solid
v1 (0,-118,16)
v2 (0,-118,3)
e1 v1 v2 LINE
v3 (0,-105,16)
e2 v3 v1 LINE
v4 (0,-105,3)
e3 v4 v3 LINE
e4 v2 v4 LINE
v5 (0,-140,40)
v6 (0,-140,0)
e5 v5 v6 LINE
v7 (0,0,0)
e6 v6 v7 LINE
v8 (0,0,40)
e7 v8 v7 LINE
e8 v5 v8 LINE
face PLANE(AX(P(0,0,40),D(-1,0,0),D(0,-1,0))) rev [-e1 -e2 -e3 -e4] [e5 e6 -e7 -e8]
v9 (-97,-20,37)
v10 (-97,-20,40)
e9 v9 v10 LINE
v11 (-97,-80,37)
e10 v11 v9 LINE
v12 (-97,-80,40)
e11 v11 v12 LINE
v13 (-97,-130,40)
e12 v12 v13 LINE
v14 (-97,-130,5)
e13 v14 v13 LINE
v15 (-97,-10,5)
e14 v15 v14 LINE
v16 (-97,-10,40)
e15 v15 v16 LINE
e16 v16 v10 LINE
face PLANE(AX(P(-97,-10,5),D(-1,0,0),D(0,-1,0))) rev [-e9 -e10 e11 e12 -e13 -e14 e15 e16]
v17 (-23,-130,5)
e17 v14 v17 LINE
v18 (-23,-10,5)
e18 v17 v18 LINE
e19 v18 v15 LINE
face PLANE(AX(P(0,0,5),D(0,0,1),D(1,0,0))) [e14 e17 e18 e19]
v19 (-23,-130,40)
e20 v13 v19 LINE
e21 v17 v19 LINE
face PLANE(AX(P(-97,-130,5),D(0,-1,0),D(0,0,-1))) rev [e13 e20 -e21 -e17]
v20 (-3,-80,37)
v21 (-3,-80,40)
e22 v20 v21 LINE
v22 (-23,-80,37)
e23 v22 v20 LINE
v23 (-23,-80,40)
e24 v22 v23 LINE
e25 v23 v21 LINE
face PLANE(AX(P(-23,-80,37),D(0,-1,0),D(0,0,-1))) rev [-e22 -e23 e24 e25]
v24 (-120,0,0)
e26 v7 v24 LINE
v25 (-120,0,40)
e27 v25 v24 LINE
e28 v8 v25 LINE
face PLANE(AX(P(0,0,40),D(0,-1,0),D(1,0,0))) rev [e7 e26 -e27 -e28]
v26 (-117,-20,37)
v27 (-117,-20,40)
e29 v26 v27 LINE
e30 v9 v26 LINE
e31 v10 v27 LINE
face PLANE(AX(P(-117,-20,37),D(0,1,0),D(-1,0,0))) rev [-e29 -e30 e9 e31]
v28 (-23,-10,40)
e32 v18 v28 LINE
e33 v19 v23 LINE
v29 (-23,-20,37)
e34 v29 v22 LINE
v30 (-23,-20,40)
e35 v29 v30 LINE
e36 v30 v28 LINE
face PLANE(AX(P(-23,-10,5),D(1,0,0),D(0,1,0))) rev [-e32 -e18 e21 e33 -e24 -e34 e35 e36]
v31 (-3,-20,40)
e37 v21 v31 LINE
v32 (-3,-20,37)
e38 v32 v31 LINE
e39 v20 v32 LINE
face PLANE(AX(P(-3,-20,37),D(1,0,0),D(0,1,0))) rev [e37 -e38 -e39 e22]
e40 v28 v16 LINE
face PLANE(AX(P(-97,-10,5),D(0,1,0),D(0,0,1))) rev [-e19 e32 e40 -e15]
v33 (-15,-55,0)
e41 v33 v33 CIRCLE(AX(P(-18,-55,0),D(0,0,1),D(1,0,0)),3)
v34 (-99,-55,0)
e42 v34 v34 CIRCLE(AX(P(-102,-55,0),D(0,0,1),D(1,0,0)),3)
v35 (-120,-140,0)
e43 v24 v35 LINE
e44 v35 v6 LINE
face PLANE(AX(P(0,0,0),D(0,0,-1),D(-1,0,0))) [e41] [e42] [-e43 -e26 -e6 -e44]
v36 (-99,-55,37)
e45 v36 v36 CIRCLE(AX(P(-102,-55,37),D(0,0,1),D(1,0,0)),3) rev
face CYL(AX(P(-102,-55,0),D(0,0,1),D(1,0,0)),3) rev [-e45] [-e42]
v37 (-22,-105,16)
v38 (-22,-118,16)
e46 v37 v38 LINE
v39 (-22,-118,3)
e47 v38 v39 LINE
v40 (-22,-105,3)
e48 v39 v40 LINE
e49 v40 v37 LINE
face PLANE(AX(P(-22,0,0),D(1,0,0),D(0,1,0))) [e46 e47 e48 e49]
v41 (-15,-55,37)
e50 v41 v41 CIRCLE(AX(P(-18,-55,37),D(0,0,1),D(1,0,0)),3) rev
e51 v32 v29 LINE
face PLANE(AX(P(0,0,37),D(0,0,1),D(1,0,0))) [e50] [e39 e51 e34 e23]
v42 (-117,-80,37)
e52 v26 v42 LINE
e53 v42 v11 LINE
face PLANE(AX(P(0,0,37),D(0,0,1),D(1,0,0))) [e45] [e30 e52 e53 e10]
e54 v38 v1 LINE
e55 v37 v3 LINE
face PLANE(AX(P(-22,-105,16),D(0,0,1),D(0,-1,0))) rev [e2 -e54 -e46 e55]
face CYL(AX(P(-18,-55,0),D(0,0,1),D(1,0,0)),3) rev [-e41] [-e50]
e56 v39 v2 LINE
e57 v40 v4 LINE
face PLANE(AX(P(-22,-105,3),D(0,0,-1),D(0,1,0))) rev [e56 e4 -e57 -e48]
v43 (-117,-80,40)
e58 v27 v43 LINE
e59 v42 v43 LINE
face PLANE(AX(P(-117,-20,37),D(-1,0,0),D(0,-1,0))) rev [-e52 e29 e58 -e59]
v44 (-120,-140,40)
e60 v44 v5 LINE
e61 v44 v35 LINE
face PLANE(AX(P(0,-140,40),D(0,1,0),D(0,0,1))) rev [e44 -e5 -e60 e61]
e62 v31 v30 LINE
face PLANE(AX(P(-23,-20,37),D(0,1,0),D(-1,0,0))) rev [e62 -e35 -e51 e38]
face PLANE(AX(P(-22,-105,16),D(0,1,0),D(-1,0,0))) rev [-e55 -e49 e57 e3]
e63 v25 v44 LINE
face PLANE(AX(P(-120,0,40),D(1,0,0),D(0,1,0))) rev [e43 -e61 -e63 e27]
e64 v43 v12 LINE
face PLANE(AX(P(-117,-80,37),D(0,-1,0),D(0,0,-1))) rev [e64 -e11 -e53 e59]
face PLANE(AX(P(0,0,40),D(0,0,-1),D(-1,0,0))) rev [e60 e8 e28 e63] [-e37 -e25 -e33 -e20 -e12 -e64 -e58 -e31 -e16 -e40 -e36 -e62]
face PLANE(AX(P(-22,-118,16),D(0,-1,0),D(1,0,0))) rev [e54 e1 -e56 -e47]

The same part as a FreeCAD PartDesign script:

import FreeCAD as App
import Part
import Sketcher
from FreeCAD import Vector


def add_polygon(sketch, points):
    """Adds a closed chain of lines whose ends are joined by coincident constraints."""
    first, n = sketch.GeometryCount, len(points)
    for a, b in zip(points, points[1:] + points[:1]):
        sketch.addGeometry(Part.LineSegment(App.Vector(*a, 0), App.Vector(*b, 0)), False)
    for i in range(n):
        sketch.addConstraint(Sketcher.Constraint("Coincident", first + i, 2, first + (i + 1) % n, 1))

doc = App.newDocument("Part")
body = doc.addObject("PartDesign::Body", "Body")

# Sketch on XY plane
sketch1 = doc.addObject("Sketcher::SketchObject", "Sketch")
body.addObject(sketch1)
sketch1.AttachmentSupport = (doc.XY_Plane, [""])
sketch1.MapMode = "FlatFace"
add_polygon(sketch1, [(-120, 0), (-120, -140), (0, -140), (0, 0)])  # lines 0-3
sketch1.addConstraint(Sketcher.Constraint("Vertical", 0))
sketch1.addConstraint(Sketcher.Constraint("Horizontal", 1))
sketch1.addConstraint(Sketcher.Constraint("Vertical", 2))
sketch1.addConstraint(Sketcher.Constraint("Horizontal", 3))
sketch1.addConstraint(Sketcher.Constraint("Coincident", 2, 2, -1, 1))
sketch1.addConstraint(Sketcher.Constraint("DistanceX", 1, 1, 1, 2, 120.0))
sketch1.addConstraint(Sketcher.Constraint("DistanceY", 0, 2, 0, 1, 140.0))
pad1 = doc.addObject("PartDesign::Pad", "Pad")
body.addObject(pad1)
pad1.Profile = sketch1
pad1.Length = 40

# Sketch on XY plane
sketch2 = doc.addObject("Sketcher::SketchObject", "Sketch001")
body.addObject(sketch2)
sketch2.AttachmentSupport = (doc.XY_Plane, [""])
sketch2.MapMode = "FlatFace"
sketch2.AttachmentOffset = App.Placement(Vector(0, 0, 40), App.Rotation())
add_polygon(sketch2, [(-97, -10), (-97, -130), (-23, -130), (-23, -10)])  # lines 0-3
sketch2.addConstraint(Sketcher.Constraint("Vertical", 0))
sketch2.addConstraint(Sketcher.Constraint("Horizontal", 1))
sketch2.addConstraint(Sketcher.Constraint("Vertical", 2))
sketch2.addConstraint(Sketcher.Constraint("Horizontal", 3))
sketch2.addConstraint(Sketcher.Constraint("DistanceX", 1, 1, 1, 2, 74.0))
sketch2.addConstraint(Sketcher.Constraint("DistanceY", 0, 2, 0, 1, 120.0))
sketch2.addConstraint(Sketcher.Constraint("DistanceX", 0, 2, -1, 1, 97.0))
sketch2.addConstraint(Sketcher.Constraint("DistanceY", 0, 2, -1, 1, 130.0))
pocket1 = doc.addObject("PartDesign::Pocket", "Pocket")
body.addObject(pocket1)
pocket1.Profile = sketch2
pocket1.Length = 35

# Sketch on XY plane
sketch3 = doc.addObject("Sketcher::SketchObject", "Sketch002")
body.addObject(sketch3)
sketch3.AttachmentSupport = (doc.XY_Plane, [""])
sketch3.MapMode = "FlatFace"
sketch3.AttachmentOffset = App.Placement(Vector(0, 0, 40), App.Rotation())
sketch3.addGeometry(Part.Circle(Vector(-102, -55, 0), Vector(0, 0, 1), 3), False)
sketch3.addGeometry(Part.Circle(Vector(-18, -55, 0), Vector(0, 0, 1), 3), False)
sketch3.addConstraint(Sketcher.Constraint("Equal", 0, 1))
sketch3.addConstraint(Sketcher.Constraint("Horizontal", 0, 3, 1, 3))
sketch3.addConstraint(Sketcher.Constraint("Diameter", 0, 6.0))
sketch3.addConstraint(Sketcher.Constraint("DistanceX", 0, 3, -1, 1, 102.0))
sketch3.addConstraint(Sketcher.Constraint("DistanceY", 0, 3, -1, 1, 55.0))
sketch3.addConstraint(Sketcher.Constraint("DistanceX", 1, 3, -1, 1, 18.0))
pocket2 = doc.addObject("PartDesign::Pocket", "Pocket001")
body.addObject(pocket2)
pocket2.Profile = sketch3
pocket2.Length = 40

# Sketch on YZ plane
sketch4 = doc.addObject("Sketcher::SketchObject", "Sketch003")
body.addObject(sketch4)
sketch4.AttachmentSupport = (doc.YZ_Plane, [""])
sketch4.MapMode = "FlatFace"
add_polygon(sketch4, [(-105, 16), (-118, 16), (-118, 3), (-105, 3)])  # lines 0-3
sketch4.addConstraint(Sketcher.Constraint("Horizontal", 0))
sketch4.addConstraint(Sketcher.Constraint("Vertical", 1))
sketch4.addConstraint(Sketcher.Constraint("Horizontal", 2))
sketch4.addConstraint(Sketcher.Constraint("Vertical", 3))
sketch4.addConstraint(Sketcher.Constraint("Equal", 2, 1))
sketch4.addConstraint(Sketcher.Constraint("DistanceX", 0, 2, 0, 1, 13.0))
sketch4.addConstraint(Sketcher.Constraint("DistanceX", 0, 2, -1, 1, 118.0))
sketch4.addConstraint(Sketcher.Constraint("DistanceY", -1, 1, 0, 2, 16.0))
pocket3 = doc.addObject("PartDesign::Pocket", "Pocket002")
body.addObject(pocket3)
pocket3.Profile = sketch4
pocket3.Length = 22

# Sketch on XY plane
sketch5 = doc.addObject("Sketcher::SketchObject", "Sketch004")
body.addObject(sketch5)
sketch5.AttachmentSupport = (doc.XY_Plane, [""])
sketch5.MapMode = "FlatFace"
sketch5.AttachmentOffset = App.Placement(Vector(0, 0, 40), App.Rotation())
add_polygon(sketch5, [(-117, -20), (-117, -80), (-97, -80), (-97, -20)])  # lines 0-3
add_polygon(sketch5, [(-23, -20), (-23, -80), (-3, -80), (-3, -20)])  # lines 4-7
sketch5.addConstraint(Sketcher.Constraint("Vertical", 0))
sketch5.addConstraint(Sketcher.Constraint("Horizontal", 1))
sketch5.addConstraint(Sketcher.Constraint("Vertical", 2))
sketch5.addConstraint(Sketcher.Constraint("Horizontal", 3))
sketch5.addConstraint(Sketcher.Constraint("Vertical", 4))
sketch5.addConstraint(Sketcher.Constraint("Horizontal", 5))
sketch5.addConstraint(Sketcher.Constraint("Vertical", 6))
sketch5.addConstraint(Sketcher.Constraint("Horizontal", 7))
sketch5.addConstraint(Sketcher.Constraint("Horizontal", 1, 2, 4, 2))
sketch5.addConstraint(Sketcher.Constraint("Horizontal", 3, 2, 6, 2))
sketch5.addConstraint(Sketcher.Constraint("Equal", 3, 5))
sketch5.addConstraint(Sketcher.Constraint("DistanceX", 1, 1, 1, 2, 20.0))
sketch5.addConstraint(Sketcher.Constraint("DistanceY", 0, 2, 0, 1, 60.0))
sketch5.addConstraint(Sketcher.Constraint("DistanceX", 0, 2, -1, 1, 117.0))
sketch5.addConstraint(Sketcher.Constraint("DistanceY", 0, 2, -1, 1, 80.0))
sketch5.addConstraint(Sketcher.Constraint("DistanceX", 4, 2, -1, 1, 23.0))
pocket4 = doc.addObject("PartDesign::Pocket", "Pocket003")
body.addObject(pocket4)
pocket4.Profile = sketch5
pocket4.Length = 3

doc.recompute()
